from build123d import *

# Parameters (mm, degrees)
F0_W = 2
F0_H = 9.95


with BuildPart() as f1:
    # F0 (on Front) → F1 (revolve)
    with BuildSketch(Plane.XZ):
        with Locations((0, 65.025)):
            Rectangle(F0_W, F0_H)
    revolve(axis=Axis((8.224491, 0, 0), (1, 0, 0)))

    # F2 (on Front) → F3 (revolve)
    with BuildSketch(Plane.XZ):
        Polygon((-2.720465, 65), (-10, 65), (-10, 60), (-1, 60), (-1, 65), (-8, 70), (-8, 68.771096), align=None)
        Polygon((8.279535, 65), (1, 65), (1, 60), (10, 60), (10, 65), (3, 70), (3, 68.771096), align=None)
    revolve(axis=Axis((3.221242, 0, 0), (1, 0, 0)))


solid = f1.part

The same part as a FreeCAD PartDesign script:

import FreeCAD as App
import Part
import Sketcher
from FreeCAD import Vector
Q = App.Units.Quantity


def add_polygon(sketch, points):
    """Adds a closed chain of lines whose ends are joined by coincident constraints."""
    first, n = sketch.GeometryCount, len(points)
    for a, b in zip(points, points[1:] + points[:1]):
        sketch.addGeometry(Part.LineSegment(App.Vector(*a, 0), App.Vector(*b, 0)), False)
    for i in range(n):
        sketch.addConstraint(Sketcher.Constraint("Coincident", first + i, 2, first + (i + 1) % n, 1))

doc = App.newDocument("Part")
body = doc.addObject("PartDesign::Body", "Body")

sketch1 = body.newObject("Sketcher::SketchObject", "Sketch")
sketch1.AttachmentSupport = (doc.getObject("XZ_Plane"), [""])
sketch1.MapMode = "FlatFace"
add_polygon(sketch1, [(-1, 70), (-1, 60.05), (1, 60.05), (1, 70)])
sketch1.addConstraint(Sketcher.Constraint("Vertical", 0))
sketch1.addConstraint(Sketcher.Constraint("Horizontal", 1))
sketch1.addConstraint(Sketcher.Constraint("Vertical", 2))
sketch1.addConstraint(Sketcher.Constraint("Horizontal", 3))
sketch1.addConstraint(Sketcher.Constraint("DistanceX", 1, 1, 1, 2, Q("2 mm")))
sketch1.addConstraint(Sketcher.Constraint("DistanceX", 0, 2, -1, 1, Q("1 mm")))
sketch1.addConstraint(Sketcher.Constraint("DistanceY", -1, 1, 2, 2, Q("70 mm")))
sketch1.addConstraint(Sketcher.Constraint("DistanceY", 0, 2, 0, 1, Q("9.95 mm")))
revolution = body.newObject("PartDesign::Revolution", "Revolution")
revolution.Profile = sketch1
revolution.ReferenceAxis = (sketch1, ["H_Axis"])
revolution.Angle = 360

sketch2 = body.newObject("Sketcher::SketchObject", "Sketch001")
sketch2.AttachmentSupport = (doc.getObject("XZ_Plane"), [""])
sketch2.MapMode = "FlatFace"
add_polygon(sketch2, [(-2.720465, 65), (-10, 65), (-10, 60), (-1, 60), (-1, 65), (-8, 70), (-8, 68.771096)])
add_polygon(sketch2, [(8.279535, 65), (1, 65), (1, 60), (10, 60), (10, 65), (3, 70), (3, 68.771096)])
sketch2.addConstraint(Sketcher.Constraint("Horizontal", 0))
sketch2.addConstraint(Sketcher.Constraint("Vertical", 1))
sketch2.addConstraint(Sketcher.Constraint("Horizontal", 2))
sketch2.addConstraint(Sketcher.Constraint("Vertical", 3))
sketch2.addConstraint(Sketcher.Constraint("Vertical", 5))
sketch2.addConstraint(Sketcher.Constraint("Horizontal", 7))
sketch2.addConstraint(Sketcher.Constraint("Vertical", 8))
sketch2.addConstraint(Sketcher.Constraint("Horizontal", 9))
sketch2.addConstraint(Sketcher.Constraint("Vertical", 10))
sketch2.addConstraint(Sketcher.Constraint("Vertical", 12))
sketch2.addConstraint(Sketcher.Constraint("Symmetric", 3, 2, 7, 2, -2))
sketch2.addConstraint(Sketcher.Constraint("Symmetric", 1, 2, 9, 2, -2))
sketch2.addConstraint(Sketcher.Constraint("Parallel", 4, 6))
sketch2.addConstraint(Sketcher.Constraint("Parallel", 6, 11))
sketch2.addConstraint(Sketcher.Constraint("Parallel", 11, 13))
sketch2.addConstraint(Sketcher.Constraint("Horizontal", 0, 2, 3, 2))
sketch2.addConstraint(Sketcher.Constraint("Horizontal", 7, 2, 10, 2))
sketch2.addConstraint(Sketcher.Constraint("Horizontal", 4, 2, 11, 2))
sketch2.addConstraint(Sketcher.Constraint("Horizontal", 5, 2, 12, 2))
sketch2.addConstraint(Sketcher.Constraint("DistanceX", 2, 1, 2, 2, Q("9 mm")))
sketch2.addConstraint(Sketcher.Constraint("DistanceY", 1, 2, 1, 1, Q("5 mm")))
sketch2.addConstraint(Sketcher.Constraint("DistanceX", 0, 2, -1, 1, Q("10 mm")))
sketch2.addConstraint(Sketcher.Constraint("DistanceY", -1, 1, 0, 2, Q("65 mm")))
sketch2.addConstraint(Sketcher.Constraint("DistanceX", 4, 2, -1, 1, Q("8 mm")))
sketch2.addConstraint(Sketcher.Constraint("DistanceY", -1, 1, 4, 2, Q("70 mm")))
sketch2.addConstraint(Sketcher.Constraint("Distance", 6, Q("6.488039 mm")))
revolution2 = body.newObject("PartDesign::Revolution", "Revolution001")
revolution2.Profile = sketch2
revolution2.ReferenceAxis = (sketch2, ["H_Axis"])
revolution2.Angle = 360

doc.recompute()
